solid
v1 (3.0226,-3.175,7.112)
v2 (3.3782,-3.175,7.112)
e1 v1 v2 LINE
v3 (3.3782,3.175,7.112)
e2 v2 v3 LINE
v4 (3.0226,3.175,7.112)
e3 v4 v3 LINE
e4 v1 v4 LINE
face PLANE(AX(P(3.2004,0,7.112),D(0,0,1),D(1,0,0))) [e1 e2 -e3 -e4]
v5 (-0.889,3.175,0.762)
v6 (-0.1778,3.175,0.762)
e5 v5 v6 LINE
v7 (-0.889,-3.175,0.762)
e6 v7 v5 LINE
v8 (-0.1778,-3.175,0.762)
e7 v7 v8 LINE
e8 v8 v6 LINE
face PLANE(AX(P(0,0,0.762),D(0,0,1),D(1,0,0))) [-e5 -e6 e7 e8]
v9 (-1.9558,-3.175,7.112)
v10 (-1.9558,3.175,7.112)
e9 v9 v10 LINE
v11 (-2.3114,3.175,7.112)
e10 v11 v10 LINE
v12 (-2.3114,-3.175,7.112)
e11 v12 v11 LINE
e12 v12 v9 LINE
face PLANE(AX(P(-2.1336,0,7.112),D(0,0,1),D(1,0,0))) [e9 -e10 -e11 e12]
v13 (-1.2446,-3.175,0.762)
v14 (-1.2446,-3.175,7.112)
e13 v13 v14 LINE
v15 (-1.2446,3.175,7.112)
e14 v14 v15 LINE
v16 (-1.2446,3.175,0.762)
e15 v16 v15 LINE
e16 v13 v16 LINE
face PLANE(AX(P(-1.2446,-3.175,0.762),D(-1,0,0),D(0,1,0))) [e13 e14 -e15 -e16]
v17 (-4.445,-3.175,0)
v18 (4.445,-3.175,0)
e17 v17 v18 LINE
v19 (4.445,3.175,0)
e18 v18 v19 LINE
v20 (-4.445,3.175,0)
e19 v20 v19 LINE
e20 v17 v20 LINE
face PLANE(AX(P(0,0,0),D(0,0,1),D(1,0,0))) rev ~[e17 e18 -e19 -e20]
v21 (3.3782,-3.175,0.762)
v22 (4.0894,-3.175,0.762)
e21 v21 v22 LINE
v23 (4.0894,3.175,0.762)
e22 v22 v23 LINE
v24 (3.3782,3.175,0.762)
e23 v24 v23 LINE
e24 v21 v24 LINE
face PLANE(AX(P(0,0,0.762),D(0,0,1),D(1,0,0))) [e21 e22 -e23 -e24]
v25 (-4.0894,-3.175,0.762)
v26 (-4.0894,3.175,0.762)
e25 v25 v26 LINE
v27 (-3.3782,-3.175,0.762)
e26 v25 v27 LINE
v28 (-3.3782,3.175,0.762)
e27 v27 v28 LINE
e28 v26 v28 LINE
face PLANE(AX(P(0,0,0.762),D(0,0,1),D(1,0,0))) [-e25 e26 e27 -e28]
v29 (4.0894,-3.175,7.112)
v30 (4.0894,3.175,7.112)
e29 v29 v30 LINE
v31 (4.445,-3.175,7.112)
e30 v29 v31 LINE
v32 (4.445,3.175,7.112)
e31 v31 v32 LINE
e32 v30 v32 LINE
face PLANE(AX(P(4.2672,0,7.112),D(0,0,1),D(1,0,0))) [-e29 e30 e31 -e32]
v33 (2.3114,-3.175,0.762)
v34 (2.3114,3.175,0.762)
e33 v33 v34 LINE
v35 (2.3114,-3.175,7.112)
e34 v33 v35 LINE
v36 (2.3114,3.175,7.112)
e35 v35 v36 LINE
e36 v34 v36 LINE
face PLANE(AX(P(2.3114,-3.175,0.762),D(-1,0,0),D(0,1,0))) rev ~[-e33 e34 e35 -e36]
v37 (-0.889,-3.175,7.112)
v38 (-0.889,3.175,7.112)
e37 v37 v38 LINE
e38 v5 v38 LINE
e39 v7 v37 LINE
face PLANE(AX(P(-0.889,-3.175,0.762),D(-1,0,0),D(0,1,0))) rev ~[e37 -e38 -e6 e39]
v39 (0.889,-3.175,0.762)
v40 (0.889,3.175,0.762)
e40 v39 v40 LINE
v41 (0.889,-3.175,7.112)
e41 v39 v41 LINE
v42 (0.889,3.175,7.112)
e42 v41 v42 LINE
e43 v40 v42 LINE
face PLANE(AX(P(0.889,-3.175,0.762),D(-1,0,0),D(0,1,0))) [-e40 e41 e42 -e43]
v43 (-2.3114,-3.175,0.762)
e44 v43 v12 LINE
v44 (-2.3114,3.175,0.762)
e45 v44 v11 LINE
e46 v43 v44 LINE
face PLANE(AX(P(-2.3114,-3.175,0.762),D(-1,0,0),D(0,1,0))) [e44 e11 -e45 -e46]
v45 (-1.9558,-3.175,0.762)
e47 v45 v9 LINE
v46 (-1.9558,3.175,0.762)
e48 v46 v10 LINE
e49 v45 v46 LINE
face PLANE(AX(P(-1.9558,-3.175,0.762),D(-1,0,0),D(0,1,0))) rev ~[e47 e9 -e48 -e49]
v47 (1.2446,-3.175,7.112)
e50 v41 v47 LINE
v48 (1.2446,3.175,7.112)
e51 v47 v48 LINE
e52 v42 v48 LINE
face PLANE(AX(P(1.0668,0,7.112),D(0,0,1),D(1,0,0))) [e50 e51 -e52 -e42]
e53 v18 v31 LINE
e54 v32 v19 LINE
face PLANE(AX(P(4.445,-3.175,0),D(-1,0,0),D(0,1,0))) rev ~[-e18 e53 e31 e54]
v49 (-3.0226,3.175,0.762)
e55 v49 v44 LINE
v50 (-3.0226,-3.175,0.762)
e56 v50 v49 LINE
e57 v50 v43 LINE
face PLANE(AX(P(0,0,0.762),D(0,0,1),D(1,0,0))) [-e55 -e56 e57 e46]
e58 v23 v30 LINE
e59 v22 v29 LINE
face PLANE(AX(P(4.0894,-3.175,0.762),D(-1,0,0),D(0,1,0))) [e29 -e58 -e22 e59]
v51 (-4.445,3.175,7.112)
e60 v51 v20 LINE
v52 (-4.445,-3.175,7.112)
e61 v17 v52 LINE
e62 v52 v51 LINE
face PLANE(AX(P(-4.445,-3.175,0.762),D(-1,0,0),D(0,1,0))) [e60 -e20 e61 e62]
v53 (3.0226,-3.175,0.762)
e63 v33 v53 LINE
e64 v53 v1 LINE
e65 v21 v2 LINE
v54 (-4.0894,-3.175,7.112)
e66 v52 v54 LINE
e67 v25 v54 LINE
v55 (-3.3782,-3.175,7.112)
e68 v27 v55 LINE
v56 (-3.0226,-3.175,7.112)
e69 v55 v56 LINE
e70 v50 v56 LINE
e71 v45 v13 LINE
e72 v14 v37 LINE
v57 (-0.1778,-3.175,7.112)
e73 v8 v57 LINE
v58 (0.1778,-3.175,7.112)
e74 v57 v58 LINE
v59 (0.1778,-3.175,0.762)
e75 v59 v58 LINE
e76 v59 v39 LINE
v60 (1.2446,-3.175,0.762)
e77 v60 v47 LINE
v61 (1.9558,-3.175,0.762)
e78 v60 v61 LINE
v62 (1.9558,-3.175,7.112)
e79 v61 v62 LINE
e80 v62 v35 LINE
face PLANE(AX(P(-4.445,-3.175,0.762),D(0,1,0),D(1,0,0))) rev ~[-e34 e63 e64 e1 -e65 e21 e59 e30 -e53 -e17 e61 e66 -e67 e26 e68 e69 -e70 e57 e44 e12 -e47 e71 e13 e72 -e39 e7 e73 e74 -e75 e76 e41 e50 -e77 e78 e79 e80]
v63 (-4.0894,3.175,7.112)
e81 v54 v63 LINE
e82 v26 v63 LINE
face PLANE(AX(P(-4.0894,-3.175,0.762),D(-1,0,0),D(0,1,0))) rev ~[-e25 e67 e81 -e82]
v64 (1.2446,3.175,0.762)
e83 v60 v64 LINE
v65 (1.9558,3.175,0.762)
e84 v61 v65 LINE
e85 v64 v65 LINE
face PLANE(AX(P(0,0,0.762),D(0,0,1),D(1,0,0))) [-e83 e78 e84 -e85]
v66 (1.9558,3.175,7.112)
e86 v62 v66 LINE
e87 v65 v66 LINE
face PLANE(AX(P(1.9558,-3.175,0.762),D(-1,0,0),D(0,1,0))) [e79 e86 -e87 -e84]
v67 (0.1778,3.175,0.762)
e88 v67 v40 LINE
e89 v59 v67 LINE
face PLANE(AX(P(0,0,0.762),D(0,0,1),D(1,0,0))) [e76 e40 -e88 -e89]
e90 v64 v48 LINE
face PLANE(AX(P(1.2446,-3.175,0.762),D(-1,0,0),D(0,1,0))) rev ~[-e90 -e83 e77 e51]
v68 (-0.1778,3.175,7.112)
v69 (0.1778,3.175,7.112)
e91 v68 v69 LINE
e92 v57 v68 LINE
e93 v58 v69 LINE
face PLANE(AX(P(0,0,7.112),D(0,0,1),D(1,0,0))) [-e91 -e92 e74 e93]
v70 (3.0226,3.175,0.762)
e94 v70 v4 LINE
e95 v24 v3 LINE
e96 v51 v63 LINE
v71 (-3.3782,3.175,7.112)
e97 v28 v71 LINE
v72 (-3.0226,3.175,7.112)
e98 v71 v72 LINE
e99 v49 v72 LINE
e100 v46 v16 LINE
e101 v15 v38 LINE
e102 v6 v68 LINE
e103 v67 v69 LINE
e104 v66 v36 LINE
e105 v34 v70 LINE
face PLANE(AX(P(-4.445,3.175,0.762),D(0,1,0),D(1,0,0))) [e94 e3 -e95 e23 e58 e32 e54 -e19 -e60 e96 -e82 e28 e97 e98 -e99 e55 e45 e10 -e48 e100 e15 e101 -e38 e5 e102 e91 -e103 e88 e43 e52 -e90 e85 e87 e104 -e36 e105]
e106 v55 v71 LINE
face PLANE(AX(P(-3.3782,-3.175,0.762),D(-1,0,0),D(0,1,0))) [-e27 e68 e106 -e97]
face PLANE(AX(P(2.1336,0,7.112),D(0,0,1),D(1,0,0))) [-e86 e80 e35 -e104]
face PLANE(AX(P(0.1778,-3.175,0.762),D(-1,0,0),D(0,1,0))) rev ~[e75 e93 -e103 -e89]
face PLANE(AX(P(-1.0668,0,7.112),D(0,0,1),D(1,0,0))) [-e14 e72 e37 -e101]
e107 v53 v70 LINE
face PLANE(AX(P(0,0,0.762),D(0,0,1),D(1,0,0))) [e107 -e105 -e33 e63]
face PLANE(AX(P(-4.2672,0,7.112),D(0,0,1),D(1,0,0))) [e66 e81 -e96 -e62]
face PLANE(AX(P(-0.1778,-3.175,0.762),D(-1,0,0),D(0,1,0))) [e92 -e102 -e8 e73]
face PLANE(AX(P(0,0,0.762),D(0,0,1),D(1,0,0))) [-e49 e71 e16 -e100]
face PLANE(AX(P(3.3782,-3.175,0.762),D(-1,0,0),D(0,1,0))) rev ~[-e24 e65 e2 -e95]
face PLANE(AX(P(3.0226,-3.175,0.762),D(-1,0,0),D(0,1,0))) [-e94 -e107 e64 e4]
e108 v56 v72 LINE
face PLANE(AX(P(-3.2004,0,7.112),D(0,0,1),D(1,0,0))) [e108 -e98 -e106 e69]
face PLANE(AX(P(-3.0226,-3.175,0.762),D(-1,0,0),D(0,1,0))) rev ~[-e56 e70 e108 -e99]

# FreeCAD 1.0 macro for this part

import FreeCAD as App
import Part
import Sketcher
from FreeCAD import Vector
Q = App.Units.Quantity


def add_polygon(sketch, points):
    """Adds a closed chain of lines whose ends are joined by coincident constraints."""
    first, n = sketch.GeometryCount, len(points)
    for a, b in zip(points, points[1:] + points[:1]):
        sketch.addGeometry(Part.LineSegment(App.Vector(*a, 0), App.Vector(*b, 0)), False)
    for i in range(n):
        sketch.addConstraint(Sketcher.Constraint("Coincident", first + i, 2, first + (i + 1) % n, 1))

doc = App.newDocument("Part")
body = doc.addObject("PartDesign::Body", "Body")

# Sketch on XY plane
sketch1 = doc.addObject("Sketcher::SketchObject", "Sketch")
body.addObject(sketch1)
sketch1.AttachmentSupport = (doc.XY_Plane, [""])
sketch1.MapMode = "FlatFace"
add_polygon(sketch1, [(-4, 3), (-4, -3), (4, -3), (4, 3)])  # lines 0-3
sketch1.addConstraint([
    Sketcher.Constraint("Vertical", 0),
    Sketcher.Constraint("Horizontal", 1),
    Sketcher.Constraint("Vertical", 2),
    Sketcher.Constraint("Horizontal", 3),
    Sketcher.Constraint("Symmetric", 0, 2, 2, 2, -1, 1),
    Sketcher.Constraint("DistanceX", 1, 1, 1, 2, Q("0.35 in")),
    Sketcher.Constraint("DistanceY", 0, 2, 0, 1, Q("0.25 in")),
])
pad1 = doc.addObject("PartDesign::Pad", "Pad")
body.addObject(pad1)
pad1.Profile = sketch1
pad1.Length = Q("0.03 in")

# Sketch on XY plane
sketch2 = doc.addObject("Sketcher::SketchObject", "Sketch001")
body.addObject(sketch2)
sketch2.AttachmentSupport = (doc.XY_Plane, [""])
sketch2.MapMode = "FlatFace"
sketch2.AttachmentOffset = App.Placement(Vector(0, 0, 0.03 * 25.4), App.Rotation())
add_polygon(sketch2, [(-4.45, 3.17), (-4.45, -3.17), (-4.09, -3.17), (-4.09, 3.17)])  # lines 0-3
add_polygon(sketch2, [(-3.38, 3.17), (-3.38, -3.17), (-3.02, -3.17), (-3.02, 3.17)])  # lines 4-7
add_polygon(sketch2, [(-2.31, 3.17), (-2.31, -3.17), (-1.96, -3.17), (-1.96, 3.17)])  # lines 8-11
add_polygon(sketch2, [(-1.24, 3.17), (-1.24, -3.17), (-0.89, -3.17), (-0.89, 3.17)])  # lines 12-15
add_polygon(sketch2, [(-0.18, 3.17), (-0.18, -3.17), (0.18, -3.17), (0.18, 3.17)])  # lines 16-19
add_polygon(sketch2, [(0.89, 3.17), (0.89, -3.17), (1.24, -3.17), (1.24, 3.17)])  # lines 20-23
add_polygon(sketch2, [(1.96, 3.17), (1.96, -3.17), (2.31, -3.17), (2.31, 3.17)])  # lines 24-27
add_polygon(sketch2, [(3.02, 3.17), (3.02, -3.17), (3.38, -3.17), (3.38, 3.17)])  # lines 28-31
add_polygon(sketch2, [(4.09, 3.17), (4.09, -3.17), (4.45, -3.17), (4.45, 3.17)])  # lines 32-35
sketch2.addConstraint([
    Sketcher.Constraint("Vertical", 0),
    Sketcher.Constraint("Horizontal", 1),
    Sketcher.Constraint("Vertical", 2),
    Sketcher.Constraint("Horizontal", 3),
    Sketcher.Constraint("Vertical", 4),
    Sketcher.Constraint("Horizontal", 5),
    Sketcher.Constraint("Vertical", 6),
    Sketcher.Constraint("Horizontal", 7),
    Sketcher.Constraint("Vertical", 8),
    Sketcher.Constraint("Horizontal", 9),
    Sketcher.Constraint("Vertical", 10),
    Sketcher.Constraint("Horizontal", 11),
    Sketcher.Constraint("Vertical", 12),
    Sketcher.Constraint("Horizontal", 13),
    Sketcher.Constraint("Vertical", 14),
    Sketcher.Constraint("Horizontal", 15),
    Sketcher.Constraint("Vertical", 16),
    Sketcher.Constraint("Horizontal", 17),
    Sketcher.Constraint("Vertical", 18),
    Sketcher.Constraint("Horizontal", 19),
    Sketcher.Constraint("Vertical", 20),
    Sketcher.Constraint("Horizontal", 21),
    Sketcher.Constraint("Vertical", 22),
    Sketcher.Constraint("Horizontal", 23),
    Sketcher.Constraint("Vertical", 24),
    Sketcher.Constraint("Horizontal", 25),
    Sketcher.Constraint("Vertical", 26),
    Sketcher.Constraint("Horizontal", 27),
    Sketcher.Constraint("Vertical", 28),
    Sketcher.Constraint("Horizontal", 29),
    Sketcher.Constraint("Vertical", 30),
    Sketcher.Constraint("Horizontal", 31),
    Sketcher.Constraint("Vertical", 32),
    Sketcher.Constraint("Horizontal", 33),
    Sketcher.Constraint("Vertical", 34),
    Sketcher.Constraint("Horizontal", 35),
    Sketcher.Constraint("Symmetric", 16, 2, 18, 2, -1, 1),
    Sketcher.Constraint("Symmetric", 14, 2, 20, 2, -1, 1),
    Sketcher.Constraint("Symmetric", 12, 2, 22, 2, -1, 1),
    Sketcher.Constraint("Symmetric", 10, 2, 24, 2, -1, 1),
    Sketcher.Constraint("Symmetric", 8, 2, 26, 2, -1, 1),
    Sketcher.Constraint("Symmetric", 6, 2, 28, 2, -1, 1),
    Sketcher.Constraint("Symmetric", 4, 2, 30, 2, -1, 1),
    Sketcher.Constraint("Symmetric", 2, 2, 32, 2, -1, 1),
    Sketcher.Constraint("Symmetric", 0, 2, 34, 2, -1, 1),
    Sketcher.Constraint("Horizontal", 1, 2, 4, 2),
    Sketcher.Constraint("Horizontal", 3, 2, 6, 2),
    Sketcher.Constraint("Horizontal", 5, 2, 8, 2),
    Sketcher.Constraint("Horizontal", 7, 2, 10, 2),
    Sketcher.Constraint("Horizontal", 9, 2, 12, 2),
    Sketcher.Constraint("Horizontal", 11, 2, 14, 2),
    Sketcher.Constraint("Horizontal", 13, 2, 16, 2),
    Sketcher.Constraint("Horizontal", 15, 2, 18, 2),
    Sketcher.Constraint("Equal", 3, 5),
    Sketcher.Constraint("Equal", 7, 9),
    Sketcher.Constraint("Equal", 11, 13),
    Sketcher.Constraint("Equal", 15, 17),
    Sketcher.Constraint("DistanceY", 0, 2, 0, 1, Q("0.25 in")),
    Sketcher.Constraint("DistanceX", 1, 1, 1, 2, Q("0.014 in")),
    Sketcher.Constraint("DistanceX", 1, 2, 8, 2, Q("0.07 in")),
    Sketcher.Constraint("DistanceX", 5, 2, 12, 2, Q("0.07 in")),
    Sketcher.Constraint("DistanceX", 9, 2, 16, 2, Q("0.07 in")),
    Sketcher.Constraint("DistanceX", 13, 2, 20, 2, Q("0.07 in")),
])
pad2 = doc.addObject("PartDesign::Pad", "Pad001")
body.addObject(pad2)
pad2.Profile = sketch2
pad2.Length = Q("0.25 in")

doc.recompute()
